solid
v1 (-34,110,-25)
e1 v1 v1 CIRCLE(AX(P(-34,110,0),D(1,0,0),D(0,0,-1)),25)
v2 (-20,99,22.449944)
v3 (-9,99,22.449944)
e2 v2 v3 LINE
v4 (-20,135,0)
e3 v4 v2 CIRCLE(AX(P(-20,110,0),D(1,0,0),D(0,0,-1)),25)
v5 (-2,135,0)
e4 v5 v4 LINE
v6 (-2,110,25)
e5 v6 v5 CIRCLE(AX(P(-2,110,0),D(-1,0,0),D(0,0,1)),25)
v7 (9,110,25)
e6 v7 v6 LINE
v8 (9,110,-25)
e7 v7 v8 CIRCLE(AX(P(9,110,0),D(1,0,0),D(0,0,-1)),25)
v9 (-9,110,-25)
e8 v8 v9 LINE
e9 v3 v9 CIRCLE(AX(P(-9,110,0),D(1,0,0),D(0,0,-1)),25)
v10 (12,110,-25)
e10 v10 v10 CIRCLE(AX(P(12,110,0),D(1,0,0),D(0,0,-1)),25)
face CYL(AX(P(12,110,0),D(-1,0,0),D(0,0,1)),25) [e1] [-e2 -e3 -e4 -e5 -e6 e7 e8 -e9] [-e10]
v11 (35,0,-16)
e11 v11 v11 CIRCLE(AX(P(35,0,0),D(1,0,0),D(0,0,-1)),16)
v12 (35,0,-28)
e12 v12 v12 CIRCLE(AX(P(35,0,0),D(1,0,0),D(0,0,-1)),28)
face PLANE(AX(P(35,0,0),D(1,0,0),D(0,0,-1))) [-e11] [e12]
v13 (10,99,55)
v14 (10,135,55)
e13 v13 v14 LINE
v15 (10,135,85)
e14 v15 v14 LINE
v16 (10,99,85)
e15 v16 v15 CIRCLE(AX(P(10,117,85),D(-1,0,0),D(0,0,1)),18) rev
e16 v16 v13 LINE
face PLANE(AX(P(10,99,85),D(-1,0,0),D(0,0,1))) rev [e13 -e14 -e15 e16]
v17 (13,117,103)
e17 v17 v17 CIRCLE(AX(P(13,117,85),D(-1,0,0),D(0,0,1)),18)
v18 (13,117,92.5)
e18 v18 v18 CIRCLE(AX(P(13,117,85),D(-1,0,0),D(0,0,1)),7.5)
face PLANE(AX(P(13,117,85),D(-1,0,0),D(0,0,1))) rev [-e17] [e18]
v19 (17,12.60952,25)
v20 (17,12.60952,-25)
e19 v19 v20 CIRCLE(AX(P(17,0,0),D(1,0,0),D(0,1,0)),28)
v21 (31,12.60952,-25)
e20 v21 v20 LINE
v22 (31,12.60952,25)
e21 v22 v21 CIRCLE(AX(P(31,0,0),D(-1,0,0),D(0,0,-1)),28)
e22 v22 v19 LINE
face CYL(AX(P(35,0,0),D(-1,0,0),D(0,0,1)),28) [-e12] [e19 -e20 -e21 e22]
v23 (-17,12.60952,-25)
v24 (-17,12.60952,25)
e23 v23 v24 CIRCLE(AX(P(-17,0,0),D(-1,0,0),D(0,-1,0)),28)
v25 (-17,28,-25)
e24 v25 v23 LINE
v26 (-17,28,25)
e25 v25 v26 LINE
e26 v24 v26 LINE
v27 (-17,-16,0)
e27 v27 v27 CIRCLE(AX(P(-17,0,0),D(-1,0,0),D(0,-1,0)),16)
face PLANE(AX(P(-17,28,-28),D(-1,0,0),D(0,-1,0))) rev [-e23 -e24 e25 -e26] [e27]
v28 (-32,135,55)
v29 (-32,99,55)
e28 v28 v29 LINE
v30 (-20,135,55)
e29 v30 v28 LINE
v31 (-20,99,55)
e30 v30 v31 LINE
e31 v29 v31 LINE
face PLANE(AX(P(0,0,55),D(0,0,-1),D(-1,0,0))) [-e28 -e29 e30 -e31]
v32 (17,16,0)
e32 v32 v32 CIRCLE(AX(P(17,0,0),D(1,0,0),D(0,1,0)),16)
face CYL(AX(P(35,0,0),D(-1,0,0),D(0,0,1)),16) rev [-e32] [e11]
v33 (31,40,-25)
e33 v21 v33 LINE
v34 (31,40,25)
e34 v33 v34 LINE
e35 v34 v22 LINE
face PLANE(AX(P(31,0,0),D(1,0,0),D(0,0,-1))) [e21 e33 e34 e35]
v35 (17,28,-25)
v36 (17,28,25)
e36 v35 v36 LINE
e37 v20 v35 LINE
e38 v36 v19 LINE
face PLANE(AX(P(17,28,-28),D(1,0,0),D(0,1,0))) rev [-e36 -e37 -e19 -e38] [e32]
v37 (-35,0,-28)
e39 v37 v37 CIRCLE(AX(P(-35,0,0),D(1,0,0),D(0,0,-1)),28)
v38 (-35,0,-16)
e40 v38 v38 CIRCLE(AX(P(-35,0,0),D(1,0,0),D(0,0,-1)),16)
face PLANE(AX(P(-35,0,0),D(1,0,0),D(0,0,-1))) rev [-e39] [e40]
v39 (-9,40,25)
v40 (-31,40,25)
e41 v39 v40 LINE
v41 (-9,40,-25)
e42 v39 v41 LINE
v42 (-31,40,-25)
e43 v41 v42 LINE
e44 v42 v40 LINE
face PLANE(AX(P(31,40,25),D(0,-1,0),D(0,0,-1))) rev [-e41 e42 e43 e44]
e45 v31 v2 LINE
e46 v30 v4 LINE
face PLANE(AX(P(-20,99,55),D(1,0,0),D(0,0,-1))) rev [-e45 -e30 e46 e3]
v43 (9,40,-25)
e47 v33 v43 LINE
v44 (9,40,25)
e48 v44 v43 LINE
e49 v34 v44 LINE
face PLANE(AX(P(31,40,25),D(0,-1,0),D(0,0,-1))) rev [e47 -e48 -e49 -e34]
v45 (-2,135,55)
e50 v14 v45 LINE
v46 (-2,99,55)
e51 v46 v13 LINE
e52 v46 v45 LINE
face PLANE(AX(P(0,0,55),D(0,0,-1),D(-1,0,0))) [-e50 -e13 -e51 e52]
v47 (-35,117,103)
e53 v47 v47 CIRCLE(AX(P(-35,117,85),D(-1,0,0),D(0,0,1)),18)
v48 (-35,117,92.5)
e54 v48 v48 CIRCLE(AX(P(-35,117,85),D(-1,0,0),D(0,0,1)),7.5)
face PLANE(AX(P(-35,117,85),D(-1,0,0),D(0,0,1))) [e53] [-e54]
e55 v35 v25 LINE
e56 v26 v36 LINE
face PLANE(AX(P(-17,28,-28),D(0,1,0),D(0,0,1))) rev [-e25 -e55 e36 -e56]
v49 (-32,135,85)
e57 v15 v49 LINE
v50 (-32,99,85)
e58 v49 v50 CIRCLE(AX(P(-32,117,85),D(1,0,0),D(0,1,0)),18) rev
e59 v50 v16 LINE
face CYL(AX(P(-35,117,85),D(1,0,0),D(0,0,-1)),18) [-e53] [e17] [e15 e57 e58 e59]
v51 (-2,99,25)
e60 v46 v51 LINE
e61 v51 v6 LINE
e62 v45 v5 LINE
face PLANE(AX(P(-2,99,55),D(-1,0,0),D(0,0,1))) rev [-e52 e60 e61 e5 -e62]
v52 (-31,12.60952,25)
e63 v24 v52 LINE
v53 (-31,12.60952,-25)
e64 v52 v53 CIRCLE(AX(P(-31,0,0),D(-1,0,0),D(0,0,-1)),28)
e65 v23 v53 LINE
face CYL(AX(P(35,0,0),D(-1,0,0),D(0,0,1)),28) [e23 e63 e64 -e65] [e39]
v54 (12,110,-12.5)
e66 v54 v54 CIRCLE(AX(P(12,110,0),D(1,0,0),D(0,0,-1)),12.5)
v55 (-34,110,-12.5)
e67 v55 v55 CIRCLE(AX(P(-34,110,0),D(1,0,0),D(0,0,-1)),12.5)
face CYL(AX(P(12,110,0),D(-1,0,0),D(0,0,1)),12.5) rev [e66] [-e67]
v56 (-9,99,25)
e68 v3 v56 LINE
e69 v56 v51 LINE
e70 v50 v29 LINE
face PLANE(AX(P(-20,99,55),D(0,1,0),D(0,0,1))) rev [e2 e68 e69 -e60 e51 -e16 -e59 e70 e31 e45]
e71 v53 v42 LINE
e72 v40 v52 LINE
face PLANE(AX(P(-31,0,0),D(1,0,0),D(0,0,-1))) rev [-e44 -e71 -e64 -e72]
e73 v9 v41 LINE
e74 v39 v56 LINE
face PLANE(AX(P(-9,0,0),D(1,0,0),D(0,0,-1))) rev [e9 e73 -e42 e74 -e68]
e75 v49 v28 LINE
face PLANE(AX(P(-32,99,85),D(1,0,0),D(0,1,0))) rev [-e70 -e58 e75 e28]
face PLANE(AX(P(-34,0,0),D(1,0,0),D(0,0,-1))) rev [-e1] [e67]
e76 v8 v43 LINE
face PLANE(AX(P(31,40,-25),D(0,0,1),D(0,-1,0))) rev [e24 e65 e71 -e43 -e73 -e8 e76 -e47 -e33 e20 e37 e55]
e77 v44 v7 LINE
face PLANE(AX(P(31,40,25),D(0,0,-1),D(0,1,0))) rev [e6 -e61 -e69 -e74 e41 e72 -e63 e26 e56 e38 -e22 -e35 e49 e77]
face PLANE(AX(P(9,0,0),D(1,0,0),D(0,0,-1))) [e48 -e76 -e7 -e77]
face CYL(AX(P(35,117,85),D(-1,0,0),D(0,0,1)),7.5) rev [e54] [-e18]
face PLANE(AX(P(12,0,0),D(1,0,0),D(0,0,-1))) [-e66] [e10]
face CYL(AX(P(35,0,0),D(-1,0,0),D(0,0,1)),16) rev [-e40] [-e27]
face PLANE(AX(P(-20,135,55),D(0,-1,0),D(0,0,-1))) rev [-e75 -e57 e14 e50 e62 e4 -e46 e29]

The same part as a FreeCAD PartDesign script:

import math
import FreeCAD as App
import Part
import Sketcher
from FreeCAD import Vector

doc = App.newDocument("Part")
body = doc.addObject("PartDesign::Body", "Body")

# Sketch on YZ plane
sketch1 = doc.addObject("Sketcher::SketchObject", "Sketch")
body.addObject(sketch1)
sketch1.AttachmentSupport = (doc.YZ_Plane, [""])
sketch1.MapMode = "FlatFace"
sketch1.addGeometry([
    Part.Circle(Vector(0, 0, 0), Vector(0, 0, 1), 28),
    Part.Circle(Vector(0, 0, 0), Vector(0, 0, 1), 16),
], False)
sketch1.addConstraint([
    Sketcher.Constraint("Coincident", 0, 3, -1, 1),
    Sketcher.Constraint("Coincident", 1, 3, -1, 1),
    Sketcher.Constraint("Diameter", 0, 56.0),
    Sketcher.Constraint("Diameter", 1, 32.0),
])
pad1 = doc.addObject("PartDesign::Pad", "Pad")
body.addObject(pad1)
pad1.Profile = sketch1
pad1.Length = 70
pad1.Midplane = True

# Sketch on YZ plane
sketch2 = doc.addObject("Sketcher::SketchObject", "Sketch001")
body.addObject(sketch2)
sketch2.AttachmentSupport = (doc.YZ_Plane, [""])
sketch2.MapMode = "FlatFace"
sketch2.addGeometry([
    Part.LineSegment(Vector(40, -25, 0), Vector(40, 25, 0)),
    Part.LineSegment(Vector(40, 25, 0), Vector(13, 25, 0)),
    Part.ArcOfCircle(Part.Circle(Vector(0, 0, 0), Vector(0, 0, 1), 28), math.radians(-63), math.radians(63)),
    Part.LineSegment(Vector(13, -25, 0), Vector(40, -25, 0)),
], False)
sketch2.addConstraint([
    Sketcher.Constraint("Coincident", 0, 2, 1, 1),
    Sketcher.Constraint("Coincident", 1, 2, 2, 2),
    Sketcher.Constraint("Coincident", 2, 1, 3, 1),
    Sketcher.Constraint("Coincident", 3, 2, 0, 1),
    Sketcher.Constraint("Vertical", 0),
    Sketcher.Constraint("Horizontal", 1),
    Sketcher.Constraint("Horizontal", 3),
    Sketcher.Constraint("Coincident", 2, 3, -1, 1),
    Sketcher.Constraint("Vertical", 1, 2, 2, 1),
    Sketcher.Constraint("Radius", 2, 28.0),
    Sketcher.Constraint("DistanceY", 0, 1, 0, 2, 50.0),
    Sketcher.Constraint("DistanceX", -1, 1, 0, 2, 40.0),
])
pad2 = doc.addObject("PartDesign::Pad", "Pad001")
body.addObject(pad2)
pad2.Profile = sketch2
pad2.Length = 62
pad2.Midplane = True

# Sketch on YZ plane
sketch3 = doc.addObject("Sketcher::SketchObject", "Sketch002")
body.addObject(sketch3)
sketch3.AttachmentSupport = (doc.YZ_Plane, [""])
sketch3.MapMode = "FlatFace"
sketch3.addGeometry([
    Part.LineSegment(Vector(110, 25, 0), Vector(40, 25, 0)),
    Part.LineSegment(Vector(40, 25, 0), Vector(40, -25, 0)),
    Part.LineSegment(Vector(40, -25, 0), Vector(110, -25, 0)),
    Part.ArcOfCircle(Part.Circle(Vector(110, 0, 0), Vector(0, 0, 1), 25), math.radians(90), math.radians(270)),
], False)
sketch3.addConstraint([
    Sketcher.Constraint("Coincident", 0, 2, 1, 1),
    Sketcher.Constraint("Coincident", 1, 2, 2, 1),
    Sketcher.Constraint("Tangent", 2, 2, 3, 2),
    Sketcher.Constraint("Tangent", 3, 1, 0, 1),
    Sketcher.Constraint("Horizontal", 0),
    Sketcher.Constraint("Vertical", 1),
    Sketcher.Constraint("Horizontal", 2),
    Sketcher.Constraint("PointOnObject", 3, 3, -1),
    Sketcher.Constraint("Radius", 3, 25.0),
    Sketcher.Constraint("DistanceX", 0, 2, 0, 1, 70.0),
    Sketcher.Constraint("DistanceX", -1, 1, 3, 3, 110.0),
])
pad3 = doc.addObject("PartDesign::Pad", "Pad002")
body.addObject(pad3)
pad3.Profile = sketch3
pad3.Length = 18
pad3.Midplane = True

# Sketch on YZ plane
sketch4 = doc.addObject("Sketcher::SketchObject", "Sketch003")
body.addObject(sketch4)
sketch4.AttachmentSupport = (doc.YZ_Plane, [""])
sketch4.MapMode = "FlatFace"
sketch4.AttachmentOffset = App.Placement(Vector(0, 0, 12), App.Rotation())
sketch4.addGeometry([
    Part.Circle(Vector(110, 0, 0), Vector(0, 0, 1), 25),
    Part.Circle(Vector(110, 0, 0), Vector(0, 0, 1), 12),
], False)
sketch4.addConstraint([
    Sketcher.Constraint("Coincident", 1, 3, 0, 3),
    Sketcher.Constraint("PointOnObject", 0, 3, -1),
    Sketcher.Constraint("Diameter", 0, 50.0),
    Sketcher.Constraint("Diameter", 1, 25.0),
    Sketcher.Constraint("DistanceX", -1, 1, 0, 3, 110.0),
])
pad4 = doc.addObject("PartDesign::Pad", "Pad003")
body.addObject(pad4)
pad4.Profile = sketch4
pad4.Length = 12
pad4.Reversed = True

# Sketch on YZ plane
sketch5 = doc.addObject("Sketcher::SketchObject", "Sketch004")
body.addObject(sketch5)
sketch5.AttachmentSupport = (doc.YZ_Plane, [""])
sketch5.MapMode = "FlatFace"
sketch5.addGeometry([
    Part.Circle(Vector(110, 0, 0), Vector(0, 0, 1), 25),
    Part.Circle(Vector(110, 0, 0), Vector(0, 0, 1), 12),
], False)
sketch5.addConstraint([
    Sketcher.Constraint("Coincident", 1, 3, 0, 3),
    Sketcher.Constraint("PointOnObject", 0, 3, -1),
    Sketcher.Constraint("Diameter", 0, 50.0),
    Sketcher.Constraint("Diameter", 1, 25.0),
    Sketcher.Constraint("DistanceX", -1, 1, 0, 3, 110.0),
])
pad5 = doc.addObject("PartDesign::Pad", "Pad004")
body.addObject(pad5)
pad5.Profile = sketch5
pad5.Length = 34
pad5.Reversed = True

# Sketch on XY plane
sketch6 = doc.addObject("Sketcher::SketchObject", "Sketch005")
body.addObject(sketch6)
sketch6.AttachmentSupport = (doc.XY_Plane, [""])
sketch6.MapMode = "FlatFace"
sketch6.addGeometry([
    Part.LineSegment(Vector(-17, 28, 0), Vector(-17, -28, 0)),
    Part.LineSegment(Vector(-17, -28, 0), Vector(17, -28, 0)),
    Part.LineSegment(Vector(17, -28, 0), Vector(17, 28, 0)),
    Part.LineSegment(Vector(17, 28, 0), Vector(-17, 28, 0)),
], False)
sketch6.addConstraint([
    Sketcher.Constraint("Coincident", 0, 2, 1, 1),
    Sketcher.Constraint("Coincident", 1, 2, 2, 1),
    Sketcher.Constraint("Coincident", 2, 2, 3, 1),
    Sketcher.Constraint("Coincident", 3, 2, 0, 1),
    Sketcher.Constraint("Vertical", 0),
    Sketcher.Constraint("Horizontal", 1),
    Sketcher.Constraint("Vertical", 2),
    Sketcher.Constraint("Horizontal", 3),
    Sketcher.Constraint("Symmetric", 0, 2, 2, 2, -1, 1),
    Sketcher.Constraint("DistanceX", 1, 1, 1, 2, 34.0),
    Sketcher.Constraint("DistanceY", 0, 2, 0, 1, 56.0),
])
pocket1 = doc.addObject("PartDesign::Pocket", "Pocket")
body.addObject(pocket1)
pocket1.Profile = sketch6
pocket1.Type = "ThroughAll"
pocket1.Midplane = True

# Sketch on XY plane
sketch7 = doc.addObject("Sketcher::SketchObject", "Sketch006")
body.addObject(sketch7)
sketch7.AttachmentSupport = (doc.XY_Plane, [""])
sketch7.MapMode = "FlatFace"
sketch7.addGeometry([
    Part.LineSegment(Vector(-20, 135, 0), Vector(-20, 99, 0)),
    Part.LineSegment(Vector(-20, 99, 0), Vector(-2, 99, 0)),
    Part.LineSegment(Vector(-2, 99, 0), Vector(-2, 135, 0)),
    Part.LineSegment(Vector(-2, 135, 0), Vector(-20, 135, 0)),
], False)
sketch7.addConstraint([
    Sketcher.Constraint("Coincident", 0, 2, 1, 1),
    Sketcher.Constraint("Coincident", 1, 2, 2, 1),
    Sketcher.Constraint("Coincident", 2, 2, 3, 1),
    Sketcher.Constraint("Coincident", 3, 2, 0, 1),
    Sketcher.Constraint("Vertical", 0),
    Sketcher.Constraint("Horizontal", 1),
    Sketcher.Constraint("Vertical", 2),
    Sketcher.Constraint("Horizontal", 3),
    Sketcher.Constraint("DistanceX", 1, 1, 1, 2, 18.0),
    Sketcher.Constraint("DistanceY", 0, 2, 0, 1, 36.0),
    Sketcher.Constraint("DistanceX", 0, 2, -1, 1, 20.0),
    Sketcher.Constraint("DistanceY", -1, 1, 0, 2, 99.0),
])
pad6 = doc.addObject("PartDesign::Pad", "Pad005")
body.addObject(pad6)
pad6.Profile = sketch7
pad6.Length = 55

# Sketch on YZ plane
sketch8 = doc.addObject("Sketcher::SketchObject", "Sketch007")
body.addObject(sketch8)
sketch8.AttachmentSupport = (doc.YZ_Plane, [""])
sketch8.MapMode = "FlatFace"
sketch8.addGeometry(Part.Circle(Vector(110, 0, 0), Vector(0, 0, 1), 12), False)
sketch8.addConstraint([
    Sketcher.Constraint("PointOnObject", 0, 3, -1),
    Sketcher.Constraint("Diameter", 0, 25.0),
    Sketcher.Constraint("DistanceX", -1, 1, 0, 3, 110.0),
])
pocket2 = doc.addObject("PartDesign::Pocket", "Pocket001")
body.addObject(pocket2)
pocket2.Profile = sketch8
pocket2.Type = "ThroughAll"
pocket2.Midplane = True

# Sketch on XY plane
sketch9 = doc.addObject("Sketcher::SketchObject", "Sketch008")
body.addObject(sketch9)
sketch9.AttachmentSupport = (doc.XY_Plane, [""])
sketch9.MapMode = "FlatFace"
sketch9.AttachmentOffset = App.Placement(Vector(0, 0, 55), App.Rotation())
sketch9.addGeometry([
    Part.LineSegment(Vector(-32, 135, 0), Vector(-32, 99, 0)),
    Part.LineSegment(Vector(-32, 99, 0), Vector(10, 99, 0)),
    Part.LineSegment(Vector(10, 99, 0), Vector(10, 135, 0)),
    Part.LineSegment(Vector(10, 135, 0), Vector(-32, 135, 0)),
], False)
sketch9.addConstraint([
    Sketcher.Constraint("Coincident", 0, 2, 1, 1),
    Sketcher.Constraint("Coincident", 1, 2, 2, 1),
    Sketcher.Constraint("Coincident", 2, 2, 3, 1),
    Sketcher.Constraint("Coincident", 3, 2, 0, 1),
    Sketcher.Constraint("Vertical", 0),
    Sketcher.Constraint("Horizontal", 1),
    Sketcher.Constraint("Vertical", 2),
    Sketcher.Constraint("Horizontal", 3),
    Sketcher.Constraint("DistanceX", 1, 1, 1, 2, 42.0),
    Sketcher.Constraint("DistanceY", 0, 2, 0, 1, 36.0),
    Sketcher.Constraint("DistanceX", 0, 2, -1, 1, 32.0),
    Sketcher.Constraint("DistanceY", -1, 1, 0, 2, 99.0),
])
pad7 = doc.addObject("PartDesign::Pad", "Pad006")
body.addObject(pad7)
pad7.Profile = sketch9
pad7.Length = 30

# Sketch on YZ plane
sketch10 = doc.addObject("Sketcher::SketchObject", "Sketch009")
body.addObject(sketch10)
sketch10.AttachmentSupport = (doc.YZ_Plane, [""])
sketch10.MapMode = "FlatFace"
sketch10.AttachmentOffset = App.Placement(Vector(0, 0, -11), App.Rotation())
sketch10.addGeometry(Part.Circle(Vector(117, 85, 0), Vector(0, 0, 1), 8), False)
sketch10.addConstraint([
    Sketcher.Constraint("Diameter", 0, 15.0),
    Sketcher.Constraint("DistanceX", -1, 1, 0, 3, 117.0),
    Sketcher.Constraint("DistanceY", -1, 1, 0, 3, 85.0),
])
pocket3 = doc.addObject("PartDesign::Pocket", "Pocket002")
body.addObject(pocket3)
pocket3.Profile = sketch10
pocket3.Type = "ThroughAll"
pocket3.Midplane = True

# Sketch on YZ plane
sketch11 = doc.addObject("Sketcher::SketchObject", "Sketch010")
body.addObject(sketch11)
sketch11.AttachmentSupport = (doc.YZ_Plane, [""])
sketch11.MapMode = "FlatFace"
sketch11.AttachmentOffset = App.Placement(Vector(0, 0, -11), App.Rotation())
sketch11.addGeometry(Part.Circle(Vector(117, 85, 0), Vector(0, 0, 1), 18), False)
sketch11.addConstraint([
    Sketcher.Constraint("Diameter", 0, 36.0),
    Sketcher.Constraint("DistanceX", -1, 1, 0, 3, 117.0),
    Sketcher.Constraint("DistanceY", -1, 1, 0, 3, 85.0),
])
pad8 = doc.addObject("PartDesign::Pad", "Pad007")
body.addObject(pad8)
pad8.Profile = sketch11
pad8.Length = 48
pad8.Midplane = True

# Sketch on YZ plane
sketch12 = doc.addObject("Sketcher::SketchObject", "Sketch011")
body.addObject(sketch12)
sketch12.AttachmentSupport = (doc.YZ_Plane, [""])
sketch12.MapMode = "FlatFace"
sketch12.AttachmentOffset = App.Placement(Vector(0, 0, -11), App.Rotation())
sketch12.addGeometry(Part.Circle(Vector(117, 85, 0), Vector(0, 0, 1), 8), False)
sketch12.addConstraint([
    Sketcher.Constraint("Diameter", 0, 15.0),
    Sketcher.Constraint("DistanceX", -1, 1, 0, 3, 117.0),
    Sketcher.Constraint("DistanceY", -1, 1, 0, 3, 85.0),
])
pocket4 = doc.addObject("PartDesign::Pocket", "Pocket003")
body.addObject(pocket4)
pocket4.Profile = sketch12
pocket4.Type = "ThroughAll"
pocket4.Midplane = True

doc.recompute()
